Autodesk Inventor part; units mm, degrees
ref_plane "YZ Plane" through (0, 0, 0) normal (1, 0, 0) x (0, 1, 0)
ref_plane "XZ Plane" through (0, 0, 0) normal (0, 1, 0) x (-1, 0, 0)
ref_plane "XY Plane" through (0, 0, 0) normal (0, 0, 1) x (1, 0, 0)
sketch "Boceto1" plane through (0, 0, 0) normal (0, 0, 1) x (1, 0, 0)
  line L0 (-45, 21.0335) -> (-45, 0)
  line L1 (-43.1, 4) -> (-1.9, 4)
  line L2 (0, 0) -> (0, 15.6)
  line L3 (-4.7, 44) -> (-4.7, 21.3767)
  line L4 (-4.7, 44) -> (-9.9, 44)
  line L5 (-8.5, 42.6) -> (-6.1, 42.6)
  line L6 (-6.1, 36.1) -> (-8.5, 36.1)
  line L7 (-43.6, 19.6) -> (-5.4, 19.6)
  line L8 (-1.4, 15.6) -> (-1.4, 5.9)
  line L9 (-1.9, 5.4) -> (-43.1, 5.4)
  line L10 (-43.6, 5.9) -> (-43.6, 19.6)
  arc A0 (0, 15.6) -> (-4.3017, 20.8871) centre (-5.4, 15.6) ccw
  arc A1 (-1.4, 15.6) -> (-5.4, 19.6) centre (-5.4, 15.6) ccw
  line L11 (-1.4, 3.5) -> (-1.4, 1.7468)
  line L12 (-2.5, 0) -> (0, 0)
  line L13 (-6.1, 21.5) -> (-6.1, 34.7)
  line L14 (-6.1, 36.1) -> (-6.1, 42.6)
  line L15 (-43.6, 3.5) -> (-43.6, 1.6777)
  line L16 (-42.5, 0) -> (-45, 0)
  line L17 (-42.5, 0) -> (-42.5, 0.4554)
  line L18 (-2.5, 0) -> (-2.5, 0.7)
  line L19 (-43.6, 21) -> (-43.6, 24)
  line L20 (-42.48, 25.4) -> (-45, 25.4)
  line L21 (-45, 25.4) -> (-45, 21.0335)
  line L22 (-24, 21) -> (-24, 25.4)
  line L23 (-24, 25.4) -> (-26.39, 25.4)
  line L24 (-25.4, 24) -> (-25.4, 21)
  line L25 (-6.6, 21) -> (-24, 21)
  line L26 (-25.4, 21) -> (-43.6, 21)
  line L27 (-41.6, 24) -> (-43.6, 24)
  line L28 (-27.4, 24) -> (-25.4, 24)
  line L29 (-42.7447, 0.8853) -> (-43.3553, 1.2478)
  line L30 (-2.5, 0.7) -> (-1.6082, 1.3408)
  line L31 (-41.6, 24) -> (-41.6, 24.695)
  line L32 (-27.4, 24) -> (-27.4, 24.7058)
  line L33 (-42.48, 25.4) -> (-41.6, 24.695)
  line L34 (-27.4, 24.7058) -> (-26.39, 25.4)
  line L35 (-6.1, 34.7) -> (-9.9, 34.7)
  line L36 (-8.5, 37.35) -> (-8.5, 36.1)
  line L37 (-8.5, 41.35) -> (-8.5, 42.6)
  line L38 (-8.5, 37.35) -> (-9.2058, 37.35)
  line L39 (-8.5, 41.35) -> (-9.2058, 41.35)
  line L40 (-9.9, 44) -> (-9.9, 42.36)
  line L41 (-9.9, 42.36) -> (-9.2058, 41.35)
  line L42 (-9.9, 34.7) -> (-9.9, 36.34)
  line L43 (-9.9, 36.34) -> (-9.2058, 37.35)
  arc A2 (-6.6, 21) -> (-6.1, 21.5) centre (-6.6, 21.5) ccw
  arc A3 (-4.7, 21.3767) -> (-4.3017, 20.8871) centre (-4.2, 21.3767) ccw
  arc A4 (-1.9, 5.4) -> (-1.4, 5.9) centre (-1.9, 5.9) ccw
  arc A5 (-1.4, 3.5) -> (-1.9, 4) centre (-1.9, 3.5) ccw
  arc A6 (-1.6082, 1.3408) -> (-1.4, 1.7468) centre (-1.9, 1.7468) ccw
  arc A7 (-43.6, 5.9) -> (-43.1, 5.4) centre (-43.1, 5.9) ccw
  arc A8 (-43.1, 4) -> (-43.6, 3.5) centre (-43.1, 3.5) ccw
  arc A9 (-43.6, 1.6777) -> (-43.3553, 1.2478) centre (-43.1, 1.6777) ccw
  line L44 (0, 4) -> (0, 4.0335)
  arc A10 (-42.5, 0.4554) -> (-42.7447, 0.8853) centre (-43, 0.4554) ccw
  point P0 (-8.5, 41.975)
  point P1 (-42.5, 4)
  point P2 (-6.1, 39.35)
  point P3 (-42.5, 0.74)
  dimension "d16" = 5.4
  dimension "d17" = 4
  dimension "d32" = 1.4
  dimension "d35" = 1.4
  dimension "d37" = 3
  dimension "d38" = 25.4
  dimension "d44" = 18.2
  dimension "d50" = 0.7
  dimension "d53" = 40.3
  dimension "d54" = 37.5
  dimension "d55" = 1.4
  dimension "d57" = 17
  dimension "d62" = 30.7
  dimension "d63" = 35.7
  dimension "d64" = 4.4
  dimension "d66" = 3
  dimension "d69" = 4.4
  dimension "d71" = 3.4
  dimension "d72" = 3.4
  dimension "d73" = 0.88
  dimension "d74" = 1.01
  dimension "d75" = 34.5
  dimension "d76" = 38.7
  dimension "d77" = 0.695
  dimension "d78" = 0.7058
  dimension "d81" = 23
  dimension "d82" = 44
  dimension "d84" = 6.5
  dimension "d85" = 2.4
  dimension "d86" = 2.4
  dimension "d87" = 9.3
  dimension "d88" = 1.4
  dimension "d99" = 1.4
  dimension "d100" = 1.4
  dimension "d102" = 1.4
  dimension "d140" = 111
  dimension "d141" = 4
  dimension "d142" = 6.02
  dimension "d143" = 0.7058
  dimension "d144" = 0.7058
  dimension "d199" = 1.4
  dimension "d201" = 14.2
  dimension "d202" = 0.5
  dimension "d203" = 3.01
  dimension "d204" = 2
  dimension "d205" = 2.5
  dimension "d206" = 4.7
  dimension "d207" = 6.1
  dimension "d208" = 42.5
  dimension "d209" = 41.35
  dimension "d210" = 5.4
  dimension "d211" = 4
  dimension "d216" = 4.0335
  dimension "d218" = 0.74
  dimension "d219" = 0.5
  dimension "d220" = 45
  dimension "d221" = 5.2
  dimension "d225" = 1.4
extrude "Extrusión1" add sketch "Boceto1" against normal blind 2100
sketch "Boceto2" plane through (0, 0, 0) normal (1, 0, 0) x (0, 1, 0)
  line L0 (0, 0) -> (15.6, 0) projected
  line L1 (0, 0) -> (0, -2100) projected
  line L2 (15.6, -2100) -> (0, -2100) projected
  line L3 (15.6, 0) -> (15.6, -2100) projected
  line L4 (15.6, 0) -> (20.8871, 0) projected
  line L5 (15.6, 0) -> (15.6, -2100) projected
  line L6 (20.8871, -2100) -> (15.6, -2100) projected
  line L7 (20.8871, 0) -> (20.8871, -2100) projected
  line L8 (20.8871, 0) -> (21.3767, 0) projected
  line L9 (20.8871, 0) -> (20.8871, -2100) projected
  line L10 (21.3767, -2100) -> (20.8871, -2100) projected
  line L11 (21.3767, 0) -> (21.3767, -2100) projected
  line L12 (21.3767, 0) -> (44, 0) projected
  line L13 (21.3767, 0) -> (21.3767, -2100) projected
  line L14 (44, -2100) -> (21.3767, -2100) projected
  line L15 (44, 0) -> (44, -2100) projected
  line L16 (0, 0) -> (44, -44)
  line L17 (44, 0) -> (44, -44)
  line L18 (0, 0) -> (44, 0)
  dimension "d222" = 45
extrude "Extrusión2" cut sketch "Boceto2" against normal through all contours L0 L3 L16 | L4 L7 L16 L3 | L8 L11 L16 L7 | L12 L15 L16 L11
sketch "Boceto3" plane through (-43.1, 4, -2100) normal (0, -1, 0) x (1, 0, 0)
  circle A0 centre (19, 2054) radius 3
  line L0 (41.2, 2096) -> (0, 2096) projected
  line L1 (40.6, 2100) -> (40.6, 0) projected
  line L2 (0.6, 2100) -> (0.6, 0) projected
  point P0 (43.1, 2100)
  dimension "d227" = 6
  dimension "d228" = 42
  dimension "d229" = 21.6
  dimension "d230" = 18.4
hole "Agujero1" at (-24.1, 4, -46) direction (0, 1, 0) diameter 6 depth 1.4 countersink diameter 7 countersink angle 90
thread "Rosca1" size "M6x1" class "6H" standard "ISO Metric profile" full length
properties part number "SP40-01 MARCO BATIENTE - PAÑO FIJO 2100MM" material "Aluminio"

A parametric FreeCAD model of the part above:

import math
import FreeCAD as App
import Part
import Sketcher
Q = App.Units.Quantity


def add_polygon(sketch, points):
    """Adds a closed chain of lines whose ends are joined by coincident constraints."""
    first, n = sketch.GeometryCount, len(points)
    for a, b in zip(points, points[1:] + points[:1]):
        sketch.addGeometry(Part.LineSegment(App.Vector(*a, 0), App.Vector(*b, 0)), False)
    for i in range(n):
        sketch.addConstraint(Sketcher.Constraint("Coincident", first + i, 2, first + (i + 1) % n, 1))

doc = App.newDocument("Part")
body = doc.addObject("PartDesign::Body", "Body")

sketch1 = body.newObject("Sketcher::SketchObject", "Sketch")
sketch1.AttachmentSupport = (doc.getObject("XY_Plane"), [""])
sketch1.MapMode = "FlatFace"
sketch1.addGeometry(Part.LineSegment(App.Vector(-45, 25.4, 0), App.Vector(-45, 0, 0)), False)
sketch1.addGeometry(Part.LineSegment(App.Vector(-45, 0, 0), App.Vector(-42.5, 0, 0)), False)
sketch1.addGeometry(Part.LineSegment(App.Vector(-42.5, 0, 0), App.Vector(-42.5, 0.46, 0)), False)
sketch1.addGeometry(Part.ArcOfCircle(Part.Circle(App.Vector(-43, 0.46, 0), App.Vector(0, 0, 1), 0.5), math.radians(0), math.radians(59)), False)
sketch1.addGeometry(Part.LineSegment(App.Vector(-42.74, 0.89, 0), App.Vector(-43.36, 1.25, 0)), False)
sketch1.addGeometry(Part.ArcOfCircle(Part.Circle(App.Vector(-43.1, 1.68, 0), App.Vector(0, 0, 1), 0.5), math.radians(180), math.radians(239)), False)
sketch1.addGeometry(Part.LineSegment(App.Vector(-43.6, 1.68, 0), App.Vector(-43.6, 3.5, 0)), False)
sketch1.addGeometry(Part.ArcOfCircle(Part.Circle(App.Vector(-43.1, 3.5, 0), App.Vector(0, 0, 1), 0.5), math.radians(90), math.radians(180)), False)
sketch1.addGeometry(Part.LineSegment(App.Vector(-43.1, 4, 0), App.Vector(-1.9, 4, 0)), False)
sketch1.addGeometry(Part.ArcOfCircle(Part.Circle(App.Vector(-1.9, 3.5, 0), App.Vector(0, 0, 1), 0.5), math.radians(0), math.radians(90)), False)
sketch1.addGeometry(Part.LineSegment(App.Vector(-1.4, 3.5, 0), App.Vector(-1.4, 1.75, 0)), False)
sketch1.addGeometry(Part.ArcOfCircle(Part.Circle(App.Vector(-1.9, 1.75, 0), App.Vector(0, 0, 1), 0.5), math.radians(-54), math.radians(0)), False)
sketch1.addGeometry(Part.LineSegment(App.Vector(-1.61, 1.34, 0), App.Vector(-2.5, 0.7, 0)), False)
sketch1.addGeometry(Part.LineSegment(App.Vector(-2.5, 0.7, 0), App.Vector(-2.5, 0, 0)), False)
sketch1.addGeometry(Part.LineSegment(App.Vector(-2.5, 0, 0), App.Vector(0, 0, 0)), False)
sketch1.addGeometry(Part.LineSegment(App.Vector(0, 0, 0), App.Vector(0, 15.6, 0)), False)
sketch1.addGeometry(Part.ArcOfCircle(Part.Circle(App.Vector(-5.4, 15.6, 0), App.Vector(0, 0, 1), 5.4), math.radians(0), math.radians(78)), False)
sketch1.addGeometry(Part.ArcOfCircle(Part.Circle(App.Vector(-4.2, 21.38, 0), App.Vector(0, 0, 1), 0.5), math.radians(180), math.radians(258)), False)
sketch1.addGeometry(Part.LineSegment(App.Vector(-4.7, 21.38, 0), App.Vector(-4.7, 44, 0)), False)
sketch1.addGeometry(Part.LineSegment(App.Vector(-4.7, 44, 0), App.Vector(-9.9, 44, 0)), False)
sketch1.addGeometry(Part.LineSegment(App.Vector(-9.9, 44, 0), App.Vector(-9.9, 42.36, 0)), False)
sketch1.addGeometry(Part.LineSegment(App.Vector(-9.9, 42.36, 0), App.Vector(-9.21, 41.35, 0)), False)
sketch1.addGeometry(Part.LineSegment(App.Vector(-9.21, 41.35, 0), App.Vector(-8.5, 41.35, 0)), False)
sketch1.addGeometry(Part.LineSegment(App.Vector(-8.5, 41.35, 0), App.Vector(-8.5, 42.6, 0)), False)
sketch1.addGeometry(Part.LineSegment(App.Vector(-8.5, 42.6, 0), App.Vector(-6.1, 42.6, 0)), False)
sketch1.addGeometry(Part.LineSegment(App.Vector(-6.1, 42.6, 0), App.Vector(-6.1, 36.1, 0)), False)
sketch1.addGeometry(Part.LineSegment(App.Vector(-6.1, 36.1, 0), App.Vector(-8.5, 36.1, 0)), False)
sketch1.addGeometry(Part.LineSegment(App.Vector(-8.5, 36.1, 0), App.Vector(-8.5, 37.35, 0)), False)
sketch1.addGeometry(Part.LineSegment(App.Vector(-8.5, 37.35, 0), App.Vector(-9.21, 37.35, 0)), False)
sketch1.addGeometry(Part.LineSegment(App.Vector(-9.21, 37.35, 0), App.Vector(-9.9, 36.34, 0)), False)
sketch1.addGeometry(Part.LineSegment(App.Vector(-9.9, 36.34, 0), App.Vector(-9.9, 34.7, 0)), False)
sketch1.addGeometry(Part.LineSegment(App.Vector(-9.9, 34.7, 0), App.Vector(-6.1, 34.7, 0)), False)
sketch1.addGeometry(Part.LineSegment(App.Vector(-6.1, 34.7, 0), App.Vector(-6.1, 21.5, 0)), False)
sketch1.addGeometry(Part.ArcOfCircle(Part.Circle(App.Vector(-6.6, 21.5, 0), App.Vector(0, 0, 1), 0.5), math.radians(-90), math.radians(0)), False)
sketch1.addGeometry(Part.LineSegment(App.Vector(-6.6, 21, 0), App.Vector(-24, 21, 0)), False)
sketch1.addGeometry(Part.LineSegment(App.Vector(-24, 21, 0), App.Vector(-24, 25.4, 0)), False)
sketch1.addGeometry(Part.LineSegment(App.Vector(-24, 25.4, 0), App.Vector(-26.39, 25.4, 0)), False)
sketch1.addGeometry(Part.LineSegment(App.Vector(-26.39, 25.4, 0), App.Vector(-27.4, 24.71, 0)), False)
sketch1.addGeometry(Part.LineSegment(App.Vector(-27.4, 24.71, 0), App.Vector(-27.4, 24, 0)), False)
sketch1.addGeometry(Part.LineSegment(App.Vector(-27.4, 24, 0), App.Vector(-25.4, 24, 0)), False)
sketch1.addGeometry(Part.LineSegment(App.Vector(-25.4, 24, 0), App.Vector(-25.4, 21, 0)), False)
sketch1.addGeometry(Part.LineSegment(App.Vector(-25.4, 21, 0), App.Vector(-43.6, 21, 0)), False)
sketch1.addGeometry(Part.LineSegment(App.Vector(-43.6, 21, 0), App.Vector(-43.6, 24, 0)), False)
sketch1.addGeometry(Part.LineSegment(App.Vector(-43.6, 24, 0), App.Vector(-41.6, 24, 0)), False)
sketch1.addGeometry(Part.LineSegment(App.Vector(-41.6, 24, 0), App.Vector(-41.6, 24.7, 0)), False)
sketch1.addGeometry(Part.LineSegment(App.Vector(-41.6, 24.7, 0), App.Vector(-42.48, 25.4, 0)), False)
sketch1.addGeometry(Part.LineSegment(App.Vector(-42.48, 25.4, 0), App.Vector(-45, 25.4, 0)), False)
sketch1.addGeometry(Part.LineSegment(App.Vector(-43.6, 5.9, 0), App.Vector(-43.6, 19.6, 0)), False)
sketch1.addGeometry(Part.LineSegment(App.Vector(-43.6, 19.6, 0), App.Vector(-5.4, 19.6, 0)), False)
sketch1.addGeometry(Part.ArcOfCircle(Part.Circle(App.Vector(-5.4, 15.6, 0), App.Vector(0, 0, 1), 4), math.radians(0), math.radians(90)), False)
sketch1.addGeometry(Part.LineSegment(App.Vector(-1.4, 15.6, 0), App.Vector(-1.4, 5.9, 0)), False)
sketch1.addGeometry(Part.ArcOfCircle(Part.Circle(App.Vector(-1.9, 5.9, 0), App.Vector(0, 0, 1), 0.5), math.radians(-90), math.radians(0)), False)
sketch1.addGeometry(Part.LineSegment(App.Vector(-1.9, 5.4, 0), App.Vector(-43.1, 5.4, 0)), False)
sketch1.addGeometry(Part.ArcOfCircle(Part.Circle(App.Vector(-43.1, 5.9, 0), App.Vector(0, 0, 1), 0.5), math.radians(180), math.radians(270)), False)
sketch1.addConstraint(Sketcher.Constraint("Coincident", 0, 2, 1, 1))
sketch1.addConstraint(Sketcher.Constraint("Coincident", 1, 2, 2, 1))
sketch1.addConstraint(Sketcher.Constraint("Tangent", 2, 2, 3, 1))
sketch1.addConstraint(Sketcher.Constraint("Tangent", 3, 2, 4, 1))
sketch1.addConstraint(Sketcher.Constraint("Tangent", 4, 2, 5, 2))
sketch1.addConstraint(Sketcher.Constraint("Tangent", 5, 1, 6, 1))
sketch1.addConstraint(Sketcher.Constraint("Tangent", 6, 2, 7, 2))
sketch1.addConstraint(Sketcher.Constraint("Tangent", 7, 1, 8, 1))
sketch1.addConstraint(Sketcher.Constraint("Tangent", 8, 2, 9, 2))
sketch1.addConstraint(Sketcher.Constraint("Tangent", 9, 1, 10, 1))
sketch1.addConstraint(Sketcher.Constraint("Tangent", 10, 2, 11, 2))
sketch1.addConstraint(Sketcher.Constraint("Tangent", 11, 1, 12, 1))
sketch1.addConstraint(Sketcher.Constraint("Coincident", 12, 2, 13, 1))
sketch1.addConstraint(Sketcher.Constraint("Coincident", 13, 2, 14, 1))
sketch1.addConstraint(Sketcher.Constraint("Coincident", 14, 2, 15, 1))
sketch1.addConstraint(Sketcher.Constraint("Tangent", 15, 2, 16, 1))
sketch1.addConstraint(Sketcher.Constraint("Tangent", 16, 2, 17, 2))
sketch1.addConstraint(Sketcher.Constraint("Tangent", 17, 1, 18, 1))
sketch1.addConstraint(Sketcher.Constraint("Coincident", 18, 2, 19, 1))
sketch1.addConstraint(Sketcher.Constraint("Coincident", 19, 2, 20, 1))
sketch1.addConstraint(Sketcher.Constraint("Coincident", 20, 2, 21, 1))
sketch1.addConstraint(Sketcher.Constraint("Coincident", 21, 2, 22, 1))
sketch1.addConstraint(Sketcher.Constraint("Coincident", 22, 2, 23, 1))
sketch1.addConstraint(Sketcher.Constraint("Coincident", 23, 2, 24, 1))
sketch1.addConstraint(Sketcher.Constraint("Coincident", 24, 2, 25, 1))
sketch1.addConstraint(Sketcher.Constraint("Coincident", 25, 2, 26, 1))
sketch1.addConstraint(Sketcher.Constraint("Coincident", 26, 2, 27, 1))
sketch1.addConstraint(Sketcher.Constraint("Coincident", 27, 2, 28, 1))
sketch1.addConstraint(Sketcher.Constraint("Coincident", 28, 2, 29, 1))
sketch1.addConstraint(Sketcher.Constraint("Coincident", 29, 2, 30, 1))
sketch1.addConstraint(Sketcher.Constraint("Coincident", 30, 2, 31, 1))
sketch1.addConstraint(Sketcher.Constraint("Coincident", 31, 2, 32, 1))
sketch1.addConstraint(Sketcher.Constraint("Tangent", 32, 2, 33, 2))
sketch1.addConstraint(Sketcher.Constraint("Tangent", 33, 1, 34, 1))
sketch1.addConstraint(Sketcher.Constraint("Coincident", 34, 2, 35, 1))
sketch1.addConstraint(Sketcher.Constraint("Coincident", 35, 2, 36, 1))
sketch1.addConstraint(Sketcher.Constraint("Coincident", 36, 2, 37, 1))
sketch1.addConstraint(Sketcher.Constraint("Coincident", 37, 2, 38, 1))
sketch1.addConstraint(Sketcher.Constraint("Coincident", 38, 2, 39, 1))
sketch1.addConstraint(Sketcher.Constraint("Coincident", 39, 2, 40, 1))
sketch1.addConstraint(Sketcher.Constraint("Coincident", 40, 2, 41, 1))
sketch1.addConstraint(Sketcher.Constraint("Coincident", 41, 2, 42, 1))
sketch1.addConstraint(Sketcher.Constraint("Coincident", 42, 2, 43, 1))
sketch1.addConstraint(Sketcher.Constraint("Coincident", 43, 2, 44, 1))
sketch1.addConstraint(Sketcher.Constraint("Coincident", 44, 2, 45, 1))
sketch1.addConstraint(Sketcher.Constraint("Coincident", 45, 2, 46, 1))
sketch1.addConstraint(Sketcher.Constraint("Coincident", 46, 2, 0, 1))
sketch1.addConstraint(Sketcher.Constraint("Coincident", 47, 2, 48, 1))
sketch1.addConstraint(Sketcher.Constraint("Tangent", 48, 2, 49, 2))
sketch1.addConstraint(Sketcher.Constraint("Tangent", 49, 1, 50, 1))
sketch1.addConstraint(Sketcher.Constraint("Tangent", 50, 2, 51, 2))
sketch1.addConstraint(Sketcher.Constraint("Tangent", 51, 1, 52, 1))
sketch1.addConstraint(Sketcher.Constraint("Tangent", 52, 2, 53, 2))
sketch1.addConstraint(Sketcher.Constraint("Tangent", 53, 1, 47, 1))
sketch1.addConstraint(Sketcher.Constraint("Vertical", 0))
sketch1.addConstraint(Sketcher.Constraint("Horizontal", 1))
sketch1.addConstraint(Sketcher.Constraint("Vertical", 2))
sketch1.addConstraint(Sketcher.Constraint("Vertical", 6))
sketch1.addConstraint(Sketcher.Constraint("Horizontal", 8))
sketch1.addConstraint(Sketcher.Constraint("Vertical", 10))
sketch1.addConstraint(Sketcher.Constraint("Vertical", 13))
sketch1.addConstraint(Sketcher.Constraint("Horizontal", 14))
sketch1.addConstraint(Sketcher.Constraint("Vertical", 15))
sketch1.addConstraint(Sketcher.Constraint("Vertical", 18))
sketch1.addConstraint(Sketcher.Constraint("Horizontal", 19))
sketch1.addConstraint(Sketcher.Constraint("Vertical", 20))
sketch1.addConstraint(Sketcher.Constraint("Horizontal", 22))
sketch1.addConstraint(Sketcher.Constraint("Vertical", 23))
sketch1.addConstraint(Sketcher.Constraint("Horizontal", 24))
sketch1.addConstraint(Sketcher.Constraint("Vertical", 25))
sketch1.addConstraint(Sketcher.Constraint("Horizontal", 26))
sketch1.addConstraint(Sketcher.Constraint("Vertical", 27))
sketch1.addConstraint(Sketcher.Constraint("Horizontal", 28))
sketch1.addConstraint(Sketcher.Constraint("Vertical", 30))
sketch1.addConstraint(Sketcher.Constraint("Horizontal", 31))
sketch1.addConstraint(Sketcher.Constraint("Vertical", 32))
sketch1.addConstraint(Sketcher.Constraint("Horizontal", 34))
sketch1.addConstraint(Sketcher.Constraint("Vertical", 35))
sketch1.addConstraint(Sketcher.Constraint("Horizontal", 36))
sketch1.addConstraint(Sketcher.Constraint("Vertical", 38))
sketch1.addConstraint(Sketcher.Constraint("Horizontal", 39))
sketch1.addConstraint(Sketcher.Constraint("Vertical", 40))
sketch1.addConstraint(Sketcher.Constraint("Horizontal", 41))
sketch1.addConstraint(Sketcher.Constraint("Vertical", 42))
sketch1.addConstraint(Sketcher.Constraint("Horizontal", 43))
sketch1.addConstraint(Sketcher.Constraint("Vertical", 44))
sketch1.addConstraint(Sketcher.Constraint("Horizontal", 46))
sketch1.addConstraint(Sketcher.Constraint("Vertical", 47))
sketch1.addConstraint(Sketcher.Constraint("Horizontal", 48))
sketch1.addConstraint(Sketcher.Constraint("Vertical", 50))
sketch1.addConstraint(Sketcher.Constraint("Horizontal", 52))
sketch1.addConstraint(Sketcher.Constraint("Coincident", 14, 2, -1, 1))
sketch1.addConstraint(Sketcher.Constraint("Coincident", 49, 3, 16, 3))
sketch1.addConstraint(Sketcher.Constraint("Equal", 3, 5))
sketch1.addConstraint(Sketcher.Constraint("Equal", 5, 7))
sketch1.addConstraint(Sketcher.Constraint("Equal", 7, 9))
sketch1.addConstraint(Sketcher.Constraint("Equal", 9, 11))
sketch1.addConstraint(Sketcher.Constraint("Equal", 11, 17))
sketch1.addConstraint(Sketcher.Constraint("Equal", 17, 33))
sketch1.addConstraint(Sketcher.Constraint("Equal", 33, 51))
sketch1.addConstraint(Sketcher.Constraint("Equal", 51, 53))
sketch1.addConstraint(Sketcher.Constraint("PointOnObject", 0, 2, -1))
sketch1.addConstraint(Sketcher.Constraint("Perpendicular", 21, 37))
sketch1.addConstraint(Sketcher.Constraint("Horizontal", 34, 2, 40, 2))
sketch1.addConstraint(Sketcher.Constraint("Horizontal", 39, 2, 42, 2))
sketch1.addConstraint(Sketcher.Constraint("Horizontal", 36, 2, 45, 2))
sketch1.addConstraint(Sketcher.Constraint("Vertical", 11, 3, 51, 3))
sketch1.addConstraint(Sketcher.Constraint("Vertical", 7, 3, 53, 3))
sketch1.addConstraint(Sketcher.Constraint("Vertical", 23, 2, 26, 2))
sketch1.addConstraint(Sketcher.Constraint("Vertical", 21, 2, 28, 2))
sketch1.addConstraint(Sketcher.Constraint("Vertical", 20, 2, 29, 2))
sketch1.addConstraint(Sketcher.Constraint("Vertical", 25, 2, 31, 2))
sketch1.addConstraint(Sketcher.Constraint("Vertical", 6, 2, 41, 2))
sketch1.addConstraint(Sketcher.Constraint("Equal", 1, 14))
sketch1.addConstraint(Sketcher.Constraint("Equal", 39, 43))
sketch1.addConstraint(Sketcher.Constraint("Equal", 23, 27))
sketch1.addConstraint(Sketcher.Constraint("Equal", 20, 30))
sketch1.addConstraint(Sketcher.Constraint("Equal", 28, 38))
sketch1.addConstraint(Sketcher.Constraint("Equal", 21, 29))
sketch1.addConstraint(Sketcher.Constraint("Equal", 29, 37))
sketch1.addConstraint(Sketcher.Constraint("Radius", 49, Q("4 mm")))
sketch1.addConstraint(Sketcher.Constraint("Radius", 3, Q("0.5 mm")))
sketch1.addConstraint(Sketcher.Constraint("Radius", 16, Q("5.4 mm")))
sketch1.addConstraint(Sketcher.Constraint("DistanceX", 39, 1, 39, 2, Q("2 mm")))
sketch1.addConstraint(Sketcher.Constraint("DistanceY", 40, 2, 40, 1, Q("3 mm")))
sketch1.addConstraint(Sketcher.Constraint("DistanceX", 1, 1, 1, 2, Q("2.5 mm")))
sketch1.addConstraint(Sketcher.Constraint("DistanceX", 19, 2, 19, 1, Q("5.2 mm")))
sketch1.addConstraint(Sketcher.Constraint("DistanceX", 24, 1, 24, 2, Q("2.4 mm")))
sketch1.addConstraint(Sketcher.Constraint("DistanceX", 41, 2, 41, 1, Q("18.2 mm")))
sketch1.addConstraint(Sketcher.Constraint("DistanceY", 0, 2, 0, 1, Q("25.4 mm")))
sketch1.addConstraint(Sketcher.Constraint("DistanceY", 13, 2, 13, 1, Q("0.7 mm")))
sketch1.addConstraint(Sketcher.Constraint("DistanceY", 25, 2, 25, 1, Q("6.5 mm")))
sketch1.addConstraint(Sketcher.Constraint("DistanceY", 35, 1, 35, 2, Q("4.4 mm")))
sketch1.addConstraint(Sketcher.Constraint("DistanceX", 0, 2, -1, 1, Q("45 mm")))
sketch1.addConstraint(Sketcher.Constraint("DistanceY", -1, 1, 7, 1, Q("4 mm")))
sketch1.addConstraint(Sketcher.Constraint("DistanceY", -1, 1, 18, 2, Q("44 mm")))
sketch1.addConstraint(Sketcher.Constraint("DistanceX", 17, 1, -1, 1, Q("4.7 mm")))
sketch1.addConstraint(Sketcher.Constraint("DistanceX", 39, 2, -1, 1, Q("25.4 mm")))
sketch1.addConstraint(Sketcher.Constraint("DistanceY", -1, 1, 51, 1, Q("5.4 mm")))
sketch1.addConstraint(Sketcher.Constraint("DistanceY", 44, 1, 44, 2, Q("0.695 mm")))
sketch1.addConstraint(Sketcher.Constraint("DistanceY", -1, 1, 21, 2, Q("41.35 mm")))
sketch1.addConstraint(Sketcher.Constraint("DistanceX", 22, 1, 22, 2, Q("0.7058 mm")))
sketch1.addConstraint(Sketcher.Constraint("DistanceX", 34, 2, 34, 1, Q("17.4 mm")))
sketch1.addConstraint(Sketcher.Constraint("DistanceY", 15, 1, 15, 2, Q("15.6 mm")))
sketch1.addConstraint(Sketcher.Constraint("DistanceY", 32, 2, 32, 1, Q("13.2 mm")))
sketch1.addConstraint(Sketcher.Constraint("Angle", 12, Q("-144.301 deg")))
sketch1.addConstraint(Sketcher.Constraint("Angle", 45, Q("141.3005 deg")))
sketch1.addConstraint(Sketcher.Constraint("DistanceX", 36, 2, 36, 1, Q("2.39 mm")))
sketch1.addConstraint(Sketcher.Constraint("Distance", 4, Q("0.71 mm")))
sketch1.addConstraint(Sketcher.Constraint("DistanceY", 2, 1, 2, 2, Q("0.4554 mm")))
pad1 = body.newObject("PartDesign::Pad", "Pad")
pad1.Profile = sketch1
pad1.Length = 2100
pad1.Reversed = True

sketch2 = body.newObject("Sketcher::SketchObject", "Sketch001")
sketch2.AttachmentSupport = (doc.getObject("YZ_Plane"), [""])
sketch2.MapMode = "FlatFace"
add_polygon(sketch2, [(0, 0), (44, -44), (44, 0)])
sketch2.addConstraint(Sketcher.Constraint("Vertical", 1))
sketch2.addConstraint(Sketcher.Constraint("Horizontal", 2))
sketch2.addConstraint(Sketcher.Constraint("Coincident", 2, 2, -1, 1))
sketch2.addConstraint(Sketcher.Constraint("Equal", 2, 1))
sketch2.addConstraint(Sketcher.Constraint("DistanceX", 2, 2, 2, 1, Q("44 mm")))
pocket1 = body.newObject("PartDesign::Pocket", "Pocket")
pocket1.Profile = sketch2
pocket1.Type = "ThroughAll"

sketch3 = body.newObject("Sketcher::SketchObject", "Sketch002")
sketch3.AttachmentSupport = (doc.getObject("XZ_Plane"), [""])
sketch3.MapMode = "FlatFace"
sketch3.AttachmentOffset = App.Placement(App.Vector(0, 0, -4), App.Rotation())
sketch3.addGeometry(Part.Circle(App.Vector(-24.1, -46, 0), App.Vector(0, 0, 1), 3), False)
sketch3.addConstraint(Sketcher.Constraint("Diameter", 0, Q("6 mm")))
sketch3.addConstraint(Sketcher.Constraint("DistanceY", 0, 3, -1, 1, Q("46 mm")))
sketch3.addConstraint(Sketcher.Constraint("DistanceX", 0, 3, -1, 1, Q("24.1 mm")))
doc.recompute()
hole = body.newObject("PartDesign::Hole", "Hole")
hole.Profile = sketch3
hole.ThreadType = "None"
hole.Diameter = 6
hole.DepthType = "Dimension"
hole.Depth = 1.4
hole.DrillPoint = "Flat"
hole.HoleCutType = "Countersink"
hole.HoleCutDiameter = 7
hole.HoleCutCountersinkAngle = 90

doc.recompute()
